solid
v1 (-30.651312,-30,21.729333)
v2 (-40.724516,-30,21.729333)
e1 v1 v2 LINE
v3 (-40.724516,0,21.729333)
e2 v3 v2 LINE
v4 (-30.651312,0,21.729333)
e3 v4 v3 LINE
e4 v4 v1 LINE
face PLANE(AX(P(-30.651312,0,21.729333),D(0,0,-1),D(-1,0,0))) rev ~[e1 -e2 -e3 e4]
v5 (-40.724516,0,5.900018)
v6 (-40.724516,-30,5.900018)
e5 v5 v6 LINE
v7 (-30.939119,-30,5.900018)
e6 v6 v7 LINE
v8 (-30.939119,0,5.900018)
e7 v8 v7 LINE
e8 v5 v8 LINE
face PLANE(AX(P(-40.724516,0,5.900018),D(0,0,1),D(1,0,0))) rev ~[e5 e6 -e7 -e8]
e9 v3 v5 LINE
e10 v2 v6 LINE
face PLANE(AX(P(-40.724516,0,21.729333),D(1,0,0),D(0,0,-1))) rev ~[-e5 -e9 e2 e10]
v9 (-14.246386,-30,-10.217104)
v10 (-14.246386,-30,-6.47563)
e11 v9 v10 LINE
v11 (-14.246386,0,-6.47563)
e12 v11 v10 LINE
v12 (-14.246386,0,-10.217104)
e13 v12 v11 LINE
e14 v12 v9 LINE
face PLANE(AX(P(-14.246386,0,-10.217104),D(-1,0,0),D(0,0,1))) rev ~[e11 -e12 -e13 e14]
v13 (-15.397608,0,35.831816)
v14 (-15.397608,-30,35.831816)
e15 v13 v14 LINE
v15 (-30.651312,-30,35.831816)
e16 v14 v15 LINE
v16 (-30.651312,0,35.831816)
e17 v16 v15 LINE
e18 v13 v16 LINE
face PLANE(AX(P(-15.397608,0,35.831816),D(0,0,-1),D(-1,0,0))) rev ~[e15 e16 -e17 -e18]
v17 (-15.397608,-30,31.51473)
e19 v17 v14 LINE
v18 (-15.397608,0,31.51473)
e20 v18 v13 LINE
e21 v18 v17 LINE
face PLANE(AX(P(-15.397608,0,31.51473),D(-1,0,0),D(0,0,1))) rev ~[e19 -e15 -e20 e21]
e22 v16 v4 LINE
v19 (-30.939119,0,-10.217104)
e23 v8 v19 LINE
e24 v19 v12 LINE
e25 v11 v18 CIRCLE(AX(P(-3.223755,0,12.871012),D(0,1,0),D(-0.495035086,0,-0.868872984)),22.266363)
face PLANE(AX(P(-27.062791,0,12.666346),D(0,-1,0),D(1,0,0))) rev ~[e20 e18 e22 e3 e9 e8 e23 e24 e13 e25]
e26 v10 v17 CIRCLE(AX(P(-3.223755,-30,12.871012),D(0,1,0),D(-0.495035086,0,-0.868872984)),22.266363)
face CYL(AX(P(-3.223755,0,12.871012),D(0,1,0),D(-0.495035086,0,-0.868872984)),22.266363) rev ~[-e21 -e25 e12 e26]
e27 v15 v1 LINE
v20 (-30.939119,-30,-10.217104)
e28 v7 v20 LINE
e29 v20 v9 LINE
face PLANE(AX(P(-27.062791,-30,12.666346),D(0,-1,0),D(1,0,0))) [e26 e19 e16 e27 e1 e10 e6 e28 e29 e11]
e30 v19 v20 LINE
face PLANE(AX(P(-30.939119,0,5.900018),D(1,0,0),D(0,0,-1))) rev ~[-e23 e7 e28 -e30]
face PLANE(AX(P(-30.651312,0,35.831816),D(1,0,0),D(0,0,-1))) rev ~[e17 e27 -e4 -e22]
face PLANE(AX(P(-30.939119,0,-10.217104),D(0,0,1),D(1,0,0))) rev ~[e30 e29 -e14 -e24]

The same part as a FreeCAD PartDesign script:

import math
import FreeCAD as App
import Part
import Sketcher
from FreeCAD import Vector

doc = App.newDocument("Part")
body = doc.addObject("PartDesign::Body", "Body")

sketch1 = doc.addObject("Sketcher::SketchObject", "Sketch")
body.addObject(sketch1)
sketch1.AttachmentSupport = (doc.XZ_Plane, [""])
sketch1.MapMode = "FlatFace"
sketch1.addGeometry([
    Part.LineSegment(Vector(-30.651312, 35.831816, 0), Vector(-30.651312, 21.729333, 0)),
    Part.LineSegment(Vector(-30.651312, 21.729333, 0), Vector(-40.724516, 21.729333, 0)),
    Part.LineSegment(Vector(-40.724516, 21.729333, 0), Vector(-40.724516, 5.900018, 0)),
    Part.LineSegment(Vector(-40.724516, 5.900018, 0), Vector(-30.939119, 5.900018, 0)),
    Part.LineSegment(Vector(-30.939119, 5.900018, 0), Vector(-30.939119, -10.217104, 0)),
    Part.LineSegment(Vector(-30.939119, -10.217104, 0), Vector(-14.246386, -10.217104, 0)),
    Part.LineSegment(Vector(-14.246386, -10.217104, 0), Vector(-14.246386, -6.47563, 0)),
    Part.ArcOfCircle(Part.Circle(Vector(-3.223755, 12.871012, 0), Vector(0, 0, 1), 22.266363), math.radians(123.14347), math.radians(240.327936)),
    Part.LineSegment(Vector(-15.397608, 31.51473, 0), Vector(-15.397608, 35.831816, 0)),
    Part.LineSegment(Vector(-15.397608, 35.831816, 0), Vector(-30.651312, 35.831816, 0)),
], False)
sketch1.addConstraint([
    Sketcher.Constraint("Coincident", 0, 2, 1, 1),
    Sketcher.Constraint("Coincident", 1, 2, 2, 1),
    Sketcher.Constraint("Coincident", 2, 2, 3, 1),
    Sketcher.Constraint("Coincident", 3, 2, 4, 1),
    Sketcher.Constraint("Coincident", 4, 2, 5, 1),
    Sketcher.Constraint("Coincident", 5, 2, 6, 1),
    Sketcher.Constraint("Coincident", 6, 2, 7, 2),
    Sketcher.Constraint("Coincident", 7, 1, 8, 1),
    Sketcher.Constraint("Coincident", 8, 2, 9, 1),
    Sketcher.Constraint("Coincident", 9, 2, 0, 1),
    Sketcher.Constraint("Vertical", 0),
    Sketcher.Constraint("Horizontal", 1),
    Sketcher.Constraint("Vertical", 2),
    Sketcher.Constraint("Horizontal", 3),
    Sketcher.Constraint("Vertical", 4),
    Sketcher.Constraint("Horizontal", 5),
    Sketcher.Constraint("Vertical", 6),
    Sketcher.Constraint("Vertical", 8),
    Sketcher.Constraint("Horizontal", 9),
    Sketcher.Constraint("Radius", 7, 22.266363),
    Sketcher.Constraint("DistanceY", 3, 2, 8, 2, 29.931798),
    Sketcher.Constraint("DistanceX", 1, 2, 1, 1, 10.073204),
    Sketcher.Constraint("DistanceX", 3, 1, 3, 2, 9.785397),
    Sketcher.Constraint("DistanceX", 5, 1, 5, 2, 16.692733),
    Sketcher.Constraint("DistanceX", 9, 2, 9, 1, 15.253704),
    Sketcher.Constraint("DistanceY", 0, 2, 0, 1, 14.102483),
    Sketcher.Constraint("DistanceY", 4, 2, 4, 1, 16.117122),
    Sketcher.Constraint("DistanceY", 6, 1, 6, 2, 3.741474),
    Sketcher.Constraint("DistanceY", 8, 1, 8, 2, 4.317086),
    Sketcher.Constraint("DistanceY", -1, 1, 7, 3, 12.871012),
    Sketcher.Constraint("DistanceX", 3, 2, -1, 1, 30.939119),
])
pad1 = doc.addObject("PartDesign::Pad", "Pad")
body.addObject(pad1)
pad1.Profile = sketch1
pad1.Length = 30

doc.recompute()
